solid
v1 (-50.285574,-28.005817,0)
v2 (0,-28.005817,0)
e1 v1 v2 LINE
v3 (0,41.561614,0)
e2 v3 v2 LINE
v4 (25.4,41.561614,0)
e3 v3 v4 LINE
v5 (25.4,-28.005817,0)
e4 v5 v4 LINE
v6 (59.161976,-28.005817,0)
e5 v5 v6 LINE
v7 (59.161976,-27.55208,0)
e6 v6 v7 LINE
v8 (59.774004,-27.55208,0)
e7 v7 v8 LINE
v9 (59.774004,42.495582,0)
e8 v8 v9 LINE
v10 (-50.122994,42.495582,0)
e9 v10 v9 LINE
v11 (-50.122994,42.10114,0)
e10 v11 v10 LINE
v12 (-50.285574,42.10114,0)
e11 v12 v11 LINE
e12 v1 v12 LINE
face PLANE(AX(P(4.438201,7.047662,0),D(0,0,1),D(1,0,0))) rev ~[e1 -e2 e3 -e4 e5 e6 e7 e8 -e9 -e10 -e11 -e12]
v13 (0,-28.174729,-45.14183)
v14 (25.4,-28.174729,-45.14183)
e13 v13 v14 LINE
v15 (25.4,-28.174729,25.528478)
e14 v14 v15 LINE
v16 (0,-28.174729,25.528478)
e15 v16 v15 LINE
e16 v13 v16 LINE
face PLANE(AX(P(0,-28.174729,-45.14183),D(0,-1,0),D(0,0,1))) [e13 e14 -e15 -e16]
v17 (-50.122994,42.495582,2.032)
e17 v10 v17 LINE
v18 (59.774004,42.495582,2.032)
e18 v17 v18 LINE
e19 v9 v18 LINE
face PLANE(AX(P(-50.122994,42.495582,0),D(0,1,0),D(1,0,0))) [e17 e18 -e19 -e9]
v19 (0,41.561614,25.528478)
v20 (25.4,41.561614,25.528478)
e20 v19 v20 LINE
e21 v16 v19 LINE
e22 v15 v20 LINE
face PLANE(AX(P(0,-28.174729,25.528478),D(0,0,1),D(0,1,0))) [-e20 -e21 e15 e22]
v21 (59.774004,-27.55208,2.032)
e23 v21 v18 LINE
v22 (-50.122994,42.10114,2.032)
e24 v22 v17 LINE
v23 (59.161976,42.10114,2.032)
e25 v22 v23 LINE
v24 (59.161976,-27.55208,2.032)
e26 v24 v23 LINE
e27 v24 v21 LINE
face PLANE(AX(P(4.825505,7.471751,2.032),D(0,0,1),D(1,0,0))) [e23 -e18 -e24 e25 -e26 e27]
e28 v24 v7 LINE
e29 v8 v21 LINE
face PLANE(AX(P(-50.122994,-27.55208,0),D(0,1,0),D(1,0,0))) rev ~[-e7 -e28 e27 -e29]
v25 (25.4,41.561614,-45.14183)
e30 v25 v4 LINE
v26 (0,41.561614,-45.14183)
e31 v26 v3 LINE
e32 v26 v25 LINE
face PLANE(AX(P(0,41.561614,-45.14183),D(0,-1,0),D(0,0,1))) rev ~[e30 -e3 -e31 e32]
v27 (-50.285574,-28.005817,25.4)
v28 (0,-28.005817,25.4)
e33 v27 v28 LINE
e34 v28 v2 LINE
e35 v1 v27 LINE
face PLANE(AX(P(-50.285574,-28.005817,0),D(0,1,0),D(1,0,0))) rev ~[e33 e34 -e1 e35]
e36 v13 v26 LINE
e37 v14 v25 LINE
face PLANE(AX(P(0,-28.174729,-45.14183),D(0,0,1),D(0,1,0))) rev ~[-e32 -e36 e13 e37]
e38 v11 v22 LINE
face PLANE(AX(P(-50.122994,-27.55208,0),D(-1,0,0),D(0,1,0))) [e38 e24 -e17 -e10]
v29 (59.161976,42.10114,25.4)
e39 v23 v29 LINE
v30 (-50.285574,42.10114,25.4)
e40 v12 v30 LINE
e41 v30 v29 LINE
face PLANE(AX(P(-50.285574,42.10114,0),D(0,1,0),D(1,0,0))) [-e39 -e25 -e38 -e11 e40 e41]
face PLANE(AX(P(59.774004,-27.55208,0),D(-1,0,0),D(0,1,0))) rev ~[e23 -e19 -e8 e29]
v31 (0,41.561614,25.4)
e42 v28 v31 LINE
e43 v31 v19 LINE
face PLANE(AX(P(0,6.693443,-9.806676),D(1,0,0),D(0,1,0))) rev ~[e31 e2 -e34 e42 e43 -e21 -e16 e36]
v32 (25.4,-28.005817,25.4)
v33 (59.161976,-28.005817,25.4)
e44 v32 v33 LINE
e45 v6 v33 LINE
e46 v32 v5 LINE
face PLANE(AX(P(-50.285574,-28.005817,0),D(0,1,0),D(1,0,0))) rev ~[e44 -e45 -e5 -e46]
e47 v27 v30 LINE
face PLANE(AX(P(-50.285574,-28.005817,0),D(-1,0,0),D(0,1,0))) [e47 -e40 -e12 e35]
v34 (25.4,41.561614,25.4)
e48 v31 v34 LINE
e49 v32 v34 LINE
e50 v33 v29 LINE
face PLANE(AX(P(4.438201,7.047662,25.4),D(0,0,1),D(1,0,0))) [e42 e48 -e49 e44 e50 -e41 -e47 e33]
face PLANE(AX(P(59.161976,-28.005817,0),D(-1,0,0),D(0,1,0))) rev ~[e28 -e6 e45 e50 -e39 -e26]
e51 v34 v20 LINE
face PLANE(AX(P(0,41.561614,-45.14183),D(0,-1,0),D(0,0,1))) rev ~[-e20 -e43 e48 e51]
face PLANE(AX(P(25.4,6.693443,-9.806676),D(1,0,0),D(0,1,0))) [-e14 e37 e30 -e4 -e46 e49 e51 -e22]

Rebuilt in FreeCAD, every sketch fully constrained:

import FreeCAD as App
import Part
import Sketcher

V = App.Vector
Q = App.Units.Quantity


def add_polygon(sketch, points):
    """Adds a closed chain of lines whose ends are joined by coincident constraints."""
    first, n = sketch.GeometryCount, len(points)
    for a, b in zip(points, points[1:] + points[:1]):
        sketch.addGeometry(Part.LineSegment(App.Vector(*a, 0), App.Vector(*b, 0)), False)
    for i in range(n):
        sketch.addConstraint(Sketcher.Constraint("Coincident", first + i, 2, first + (i + 1) % n, 1))

doc = App.newDocument("Part")
body = doc.addObject("PartDesign::Body", "Body")

sketch1 = body.newObject("Sketcher::SketchObject", "Sketch")
sketch1.AttachmentSupport = (doc.getObject("XY_Plane"), [""])
sketch1.MapMode = "FlatFace"
add_polygon(sketch1, [(-50, 42), (-50, -28), (59, -28), (59, 42)])
sketch1.addConstraint([
    Sketcher.Constraint("Vertical", 0),
    Sketcher.Constraint("Horizontal", 1),
    Sketcher.Constraint("Vertical", 2),
    Sketcher.Constraint("Horizontal", 3),
    Sketcher.Constraint("DistanceX", 1, 1, 1, 2, 109.44755),
    Sketcher.Constraint("DistanceY", 0, 2, 0, 1, 70.106957),
    Sketcher.Constraint("DistanceY", -1, 1, 2, 2, 42.10114),
    Sketcher.Constraint("DistanceX", 0, 2, -1, 1, 50.285574),
])
pad1 = body.newObject("PartDesign::Pad", "Pad")
pad1.Profile = sketch1
pad1.Length = Q("1 in")

sketch2 = body.newObject("Sketcher::SketchObject", "Sketch001")
sketch2.AttachmentSupport = (doc.getObject("YZ_Plane"), [""])
sketch2.MapMode = "FlatFace"
add_polygon(sketch2, [(-28, 26), (-28, -45), (42, -45), (42, 26)])
sketch2.addConstraint([
    Sketcher.Constraint("Vertical", 0),
    Sketcher.Constraint("Horizontal", 1),
    Sketcher.Constraint("Vertical", 2),
    Sketcher.Constraint("Horizontal", 3),
    Sketcher.Constraint("DistanceY", 0, 2, 0, 1, 70.670309),
    Sketcher.Constraint("DistanceX", 1, 1, 1, 2, 69.736343),
    Sketcher.Constraint("DistanceX", 0, 2, -1, 1, 28.174729),
    Sketcher.Constraint("DistanceY", 0, 2, -1, 1, 45.14183),
])
pad2 = body.newObject("PartDesign::Pad", "Pad001")
pad2.Profile = sketch2
pad2.Length = Q("1 in")

sketch3 = body.newObject("Sketcher::SketchObject", "Sketch002")
sketch3.AttachmentSupport = (doc.getObject("XY_Plane"), [""])
sketch3.MapMode = "FlatFace"
add_polygon(sketch3, [(-50, 42), (-50, -28), (60, -28), (60, 42)])
sketch3.addConstraint([
    Sketcher.Constraint("Vertical", 0),
    Sketcher.Constraint("Horizontal", 1),
    Sketcher.Constraint("Vertical", 2),
    Sketcher.Constraint("Horizontal", 3),
    Sketcher.Constraint("DistanceX", 1, 1, 1, 2, 109.896999),
    Sketcher.Constraint("DistanceY", 0, 2, 0, 1, 70.047663),
    Sketcher.Constraint("DistanceY", 0, 2, -1, 1, 27.55208),
    Sketcher.Constraint("DistanceX", 0, 2, -1, 1, 50.122994),
])
pad3 = body.newObject("PartDesign::Pad", "Pad002")
pad3.Profile = sketch3
pad3.Length = Q("0.08 in")

doc.recompute()
